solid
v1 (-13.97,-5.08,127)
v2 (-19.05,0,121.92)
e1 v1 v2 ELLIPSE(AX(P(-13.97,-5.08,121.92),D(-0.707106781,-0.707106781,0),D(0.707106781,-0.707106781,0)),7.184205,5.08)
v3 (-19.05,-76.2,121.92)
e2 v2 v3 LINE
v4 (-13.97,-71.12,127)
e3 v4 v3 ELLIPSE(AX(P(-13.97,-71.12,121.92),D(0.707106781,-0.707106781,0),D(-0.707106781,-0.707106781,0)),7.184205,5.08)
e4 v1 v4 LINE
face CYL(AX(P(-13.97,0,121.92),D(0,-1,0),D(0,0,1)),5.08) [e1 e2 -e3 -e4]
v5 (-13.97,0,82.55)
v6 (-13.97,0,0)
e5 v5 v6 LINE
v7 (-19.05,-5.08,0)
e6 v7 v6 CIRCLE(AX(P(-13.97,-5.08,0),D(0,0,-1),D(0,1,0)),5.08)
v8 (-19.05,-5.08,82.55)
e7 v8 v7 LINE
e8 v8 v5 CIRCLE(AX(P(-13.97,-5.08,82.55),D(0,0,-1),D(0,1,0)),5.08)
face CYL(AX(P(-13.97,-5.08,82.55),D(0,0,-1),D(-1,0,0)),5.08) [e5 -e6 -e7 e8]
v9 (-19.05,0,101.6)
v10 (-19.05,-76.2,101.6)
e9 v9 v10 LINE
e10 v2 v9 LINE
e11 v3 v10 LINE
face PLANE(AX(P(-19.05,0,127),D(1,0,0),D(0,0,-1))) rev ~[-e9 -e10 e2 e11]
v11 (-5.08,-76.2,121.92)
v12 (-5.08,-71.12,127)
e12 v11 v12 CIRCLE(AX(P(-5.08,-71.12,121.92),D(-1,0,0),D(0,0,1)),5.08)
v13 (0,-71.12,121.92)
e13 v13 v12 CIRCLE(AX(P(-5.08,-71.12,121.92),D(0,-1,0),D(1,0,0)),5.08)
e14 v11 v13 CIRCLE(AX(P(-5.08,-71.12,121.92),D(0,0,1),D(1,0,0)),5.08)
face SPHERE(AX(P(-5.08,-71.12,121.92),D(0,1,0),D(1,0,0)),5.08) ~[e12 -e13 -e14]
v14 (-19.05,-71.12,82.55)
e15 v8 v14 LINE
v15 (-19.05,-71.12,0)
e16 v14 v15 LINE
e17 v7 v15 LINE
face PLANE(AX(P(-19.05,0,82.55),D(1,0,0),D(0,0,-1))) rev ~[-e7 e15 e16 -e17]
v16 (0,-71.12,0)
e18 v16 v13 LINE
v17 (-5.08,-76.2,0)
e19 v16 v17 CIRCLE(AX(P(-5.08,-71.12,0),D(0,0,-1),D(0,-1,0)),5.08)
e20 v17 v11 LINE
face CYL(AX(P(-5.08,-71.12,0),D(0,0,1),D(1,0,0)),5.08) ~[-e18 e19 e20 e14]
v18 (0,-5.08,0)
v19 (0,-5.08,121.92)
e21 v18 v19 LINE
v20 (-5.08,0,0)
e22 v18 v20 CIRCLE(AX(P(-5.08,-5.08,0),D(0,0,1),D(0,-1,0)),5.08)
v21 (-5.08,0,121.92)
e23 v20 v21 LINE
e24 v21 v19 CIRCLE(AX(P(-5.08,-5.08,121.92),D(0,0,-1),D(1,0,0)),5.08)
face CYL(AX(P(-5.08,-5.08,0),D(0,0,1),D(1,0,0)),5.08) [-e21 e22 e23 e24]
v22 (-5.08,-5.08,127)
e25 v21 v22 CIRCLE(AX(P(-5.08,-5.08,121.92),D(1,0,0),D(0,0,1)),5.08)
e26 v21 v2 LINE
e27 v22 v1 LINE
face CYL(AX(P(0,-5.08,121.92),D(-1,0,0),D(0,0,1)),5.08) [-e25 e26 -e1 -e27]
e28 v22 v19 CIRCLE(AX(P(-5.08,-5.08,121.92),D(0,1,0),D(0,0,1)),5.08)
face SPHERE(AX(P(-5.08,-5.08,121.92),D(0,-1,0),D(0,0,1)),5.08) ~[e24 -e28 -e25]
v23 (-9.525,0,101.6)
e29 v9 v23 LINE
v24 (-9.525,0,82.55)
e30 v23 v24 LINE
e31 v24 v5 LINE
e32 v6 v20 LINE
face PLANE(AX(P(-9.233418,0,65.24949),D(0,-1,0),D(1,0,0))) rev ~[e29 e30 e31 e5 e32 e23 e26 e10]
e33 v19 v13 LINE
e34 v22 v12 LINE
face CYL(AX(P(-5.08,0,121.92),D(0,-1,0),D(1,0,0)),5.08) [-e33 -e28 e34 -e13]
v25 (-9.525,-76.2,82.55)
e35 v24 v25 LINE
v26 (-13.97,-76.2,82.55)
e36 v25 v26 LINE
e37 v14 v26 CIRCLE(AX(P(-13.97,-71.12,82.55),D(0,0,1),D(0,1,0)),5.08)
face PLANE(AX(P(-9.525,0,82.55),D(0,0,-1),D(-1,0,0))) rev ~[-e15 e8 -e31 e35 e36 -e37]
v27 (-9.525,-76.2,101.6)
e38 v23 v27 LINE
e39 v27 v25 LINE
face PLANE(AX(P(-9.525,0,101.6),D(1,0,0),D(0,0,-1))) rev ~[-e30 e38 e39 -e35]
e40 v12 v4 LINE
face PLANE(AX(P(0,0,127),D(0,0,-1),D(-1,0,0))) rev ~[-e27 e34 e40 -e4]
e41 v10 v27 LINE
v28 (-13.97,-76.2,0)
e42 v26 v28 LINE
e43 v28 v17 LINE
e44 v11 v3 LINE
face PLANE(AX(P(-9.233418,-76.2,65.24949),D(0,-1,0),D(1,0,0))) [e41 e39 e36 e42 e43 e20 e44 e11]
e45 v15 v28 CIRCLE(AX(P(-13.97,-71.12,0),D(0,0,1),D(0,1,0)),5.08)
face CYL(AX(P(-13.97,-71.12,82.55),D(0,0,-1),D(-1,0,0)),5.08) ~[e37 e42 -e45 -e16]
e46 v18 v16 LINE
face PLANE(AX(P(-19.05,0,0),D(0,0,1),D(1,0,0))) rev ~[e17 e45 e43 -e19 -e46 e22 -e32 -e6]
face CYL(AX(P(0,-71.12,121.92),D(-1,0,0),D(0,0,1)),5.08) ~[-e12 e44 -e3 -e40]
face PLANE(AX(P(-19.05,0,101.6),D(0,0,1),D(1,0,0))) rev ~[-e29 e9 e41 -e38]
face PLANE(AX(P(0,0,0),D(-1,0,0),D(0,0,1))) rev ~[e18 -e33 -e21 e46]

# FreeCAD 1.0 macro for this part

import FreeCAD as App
import Part
import Sketcher
from FreeCAD import Vector
Q = App.Units.Quantity


def edges_at(feature, points):
    """Names of the edges that pass closest to the given points."""
    edges = feature.Shape.Edges
    near = lambda p: min(range(len(edges)), key=lambda i: edges[i].distToShape(Part.Vertex(*p))[0])
    return sorted({f"Edge{near(p) + 1}" for p in points})

doc = App.newDocument("Part")
params = doc.addObject("Spreadsheet::Sheet", "Params")
for row, (alias, value) in enumerate([
    ("sketch1_height", "5 in"),
    ("sketch1_height2", "1 in"),
    ("sketch1_width", "0.75 in"),
    ("sketch1_width2", "0.375 in"),
    ("pad1_length", "3 in"),
    ("fillet_radius", "0.2 in"),
], start=1):
    params.set(f"A{row}", alias)
    params.set(f"B{row}", "=" + value)
    params.setAlias(f"B{row}", alias)

body = doc.addObject("PartDesign::Body", "Body")

# Sketch on XZ plane
sketch1 = doc.addObject("Sketcher::SketchObject", "Sketch")
body.addObject(sketch1)
sketch1.AttachmentSupport = (doc.XZ_Plane, [""])
sketch1.MapMode = "FlatFace"
sketch1.addGeometry(Part.LineSegment(Vector(-19, 0, 0), Vector(0, 0, 0)), False)
sketch1.addGeometry(Part.LineSegment(Vector(0, 0, 0), Vector(0, 127, 0)), False)
sketch1.addGeometry(Part.LineSegment(Vector(0, 127, 0), Vector(-19, 127, 0)), False)
sketch1.addGeometry(Part.LineSegment(Vector(-19, 127, 0), Vector(-19, 102, 0)), False)
sketch1.addGeometry(Part.LineSegment(Vector(-19, 102, 0), Vector(-10, 102, 0)), False)
sketch1.addGeometry(Part.LineSegment(Vector(-10, 102, 0), Vector(-10, 83, 0)), False)
sketch1.addGeometry(Part.LineSegment(Vector(-10, 83, 0), Vector(-19, 83, 0)), False)
sketch1.addGeometry(Part.LineSegment(Vector(-19, 83, 0), Vector(-19, 0, 0)), False)
sketch1.addConstraint(Sketcher.Constraint("Coincident", 0, 2, 1, 1))
sketch1.addConstraint(Sketcher.Constraint("Coincident", 1, 2, 2, 1))
sketch1.addConstraint(Sketcher.Constraint("Coincident", 2, 2, 3, 1))
sketch1.addConstraint(Sketcher.Constraint("Coincident", 3, 2, 4, 1))
sketch1.addConstraint(Sketcher.Constraint("Coincident", 4, 2, 5, 1))
sketch1.addConstraint(Sketcher.Constraint("Coincident", 5, 2, 6, 1))
sketch1.addConstraint(Sketcher.Constraint("Coincident", 6, 2, 7, 1))
sketch1.addConstraint(Sketcher.Constraint("Coincident", 7, 2, 0, 1))
sketch1.addConstraint(Sketcher.Constraint("Horizontal", 0))
sketch1.addConstraint(Sketcher.Constraint("Vertical", 1))
sketch1.addConstraint(Sketcher.Constraint("Horizontal", 2))
sketch1.addConstraint(Sketcher.Constraint("Vertical", 3))
sketch1.addConstraint(Sketcher.Constraint("Horizontal", 4))
sketch1.addConstraint(Sketcher.Constraint("Vertical", 5))
sketch1.addConstraint(Sketcher.Constraint("Horizontal", 6))
sketch1.addConstraint(Sketcher.Constraint("Vertical", 7))
sketch1.addConstraint(Sketcher.Constraint("Coincident", 0, 2, -1, 1))
sketch1.addConstraint(Sketcher.Constraint("Vertical", 3, 2, 6, 2))
sketch1.addConstraint(Sketcher.Constraint("Equal", 2, 5))
sketch1.addConstraint(Sketcher.Constraint("DistanceY", 1, 1, 1, 2, Q("5 in")))
sketch1.addConstraint(Sketcher.Constraint("DistanceY", 3, 2, 3, 1, Q("1 in")))
sketch1.addConstraint(Sketcher.Constraint("DistanceX", 0, 1, 0, 2, Q("0.75 in")))
sketch1.addConstraint(Sketcher.Constraint("DistanceX", 4, 1, 4, 2, Q("0.375 in")))
sketch1.setExpression("Constraints[19]", "Params.sketch1_height")
sketch1.setExpression("Constraints[20]", "Params.sketch1_height2")
sketch1.setExpression("Constraints[21]", "Params.sketch1_width")
sketch1.setExpression("Constraints[22]", "Params.sketch1_width2")
pad1 = doc.addObject("PartDesign::Pad", "Pad")
body.addObject(pad1)
pad1.Profile = sketch1
pad1.setExpression("Length", "Params.pad1_length")
doc.recompute()

fillet = doc.addObject("PartDesign::Fillet", "Fillet")
body.addObject(fillet)
fillet.Base = (pad1, edges_at(pad1, [
    (0, -38.1, 127),
    (0, -76.2, 63.5),
    (-9.525, -76.2, 127),
    (-19.05, -76.2, 41.275),
    (-19.05, 0, 41.275),
    (-19.05, -38.1, 127),
    (-9.525, 0, 127),
    (0, 0, 63.5),
]))
fillet.setExpression("Radius", "Params.fillet_radius")

doc.recompute()
